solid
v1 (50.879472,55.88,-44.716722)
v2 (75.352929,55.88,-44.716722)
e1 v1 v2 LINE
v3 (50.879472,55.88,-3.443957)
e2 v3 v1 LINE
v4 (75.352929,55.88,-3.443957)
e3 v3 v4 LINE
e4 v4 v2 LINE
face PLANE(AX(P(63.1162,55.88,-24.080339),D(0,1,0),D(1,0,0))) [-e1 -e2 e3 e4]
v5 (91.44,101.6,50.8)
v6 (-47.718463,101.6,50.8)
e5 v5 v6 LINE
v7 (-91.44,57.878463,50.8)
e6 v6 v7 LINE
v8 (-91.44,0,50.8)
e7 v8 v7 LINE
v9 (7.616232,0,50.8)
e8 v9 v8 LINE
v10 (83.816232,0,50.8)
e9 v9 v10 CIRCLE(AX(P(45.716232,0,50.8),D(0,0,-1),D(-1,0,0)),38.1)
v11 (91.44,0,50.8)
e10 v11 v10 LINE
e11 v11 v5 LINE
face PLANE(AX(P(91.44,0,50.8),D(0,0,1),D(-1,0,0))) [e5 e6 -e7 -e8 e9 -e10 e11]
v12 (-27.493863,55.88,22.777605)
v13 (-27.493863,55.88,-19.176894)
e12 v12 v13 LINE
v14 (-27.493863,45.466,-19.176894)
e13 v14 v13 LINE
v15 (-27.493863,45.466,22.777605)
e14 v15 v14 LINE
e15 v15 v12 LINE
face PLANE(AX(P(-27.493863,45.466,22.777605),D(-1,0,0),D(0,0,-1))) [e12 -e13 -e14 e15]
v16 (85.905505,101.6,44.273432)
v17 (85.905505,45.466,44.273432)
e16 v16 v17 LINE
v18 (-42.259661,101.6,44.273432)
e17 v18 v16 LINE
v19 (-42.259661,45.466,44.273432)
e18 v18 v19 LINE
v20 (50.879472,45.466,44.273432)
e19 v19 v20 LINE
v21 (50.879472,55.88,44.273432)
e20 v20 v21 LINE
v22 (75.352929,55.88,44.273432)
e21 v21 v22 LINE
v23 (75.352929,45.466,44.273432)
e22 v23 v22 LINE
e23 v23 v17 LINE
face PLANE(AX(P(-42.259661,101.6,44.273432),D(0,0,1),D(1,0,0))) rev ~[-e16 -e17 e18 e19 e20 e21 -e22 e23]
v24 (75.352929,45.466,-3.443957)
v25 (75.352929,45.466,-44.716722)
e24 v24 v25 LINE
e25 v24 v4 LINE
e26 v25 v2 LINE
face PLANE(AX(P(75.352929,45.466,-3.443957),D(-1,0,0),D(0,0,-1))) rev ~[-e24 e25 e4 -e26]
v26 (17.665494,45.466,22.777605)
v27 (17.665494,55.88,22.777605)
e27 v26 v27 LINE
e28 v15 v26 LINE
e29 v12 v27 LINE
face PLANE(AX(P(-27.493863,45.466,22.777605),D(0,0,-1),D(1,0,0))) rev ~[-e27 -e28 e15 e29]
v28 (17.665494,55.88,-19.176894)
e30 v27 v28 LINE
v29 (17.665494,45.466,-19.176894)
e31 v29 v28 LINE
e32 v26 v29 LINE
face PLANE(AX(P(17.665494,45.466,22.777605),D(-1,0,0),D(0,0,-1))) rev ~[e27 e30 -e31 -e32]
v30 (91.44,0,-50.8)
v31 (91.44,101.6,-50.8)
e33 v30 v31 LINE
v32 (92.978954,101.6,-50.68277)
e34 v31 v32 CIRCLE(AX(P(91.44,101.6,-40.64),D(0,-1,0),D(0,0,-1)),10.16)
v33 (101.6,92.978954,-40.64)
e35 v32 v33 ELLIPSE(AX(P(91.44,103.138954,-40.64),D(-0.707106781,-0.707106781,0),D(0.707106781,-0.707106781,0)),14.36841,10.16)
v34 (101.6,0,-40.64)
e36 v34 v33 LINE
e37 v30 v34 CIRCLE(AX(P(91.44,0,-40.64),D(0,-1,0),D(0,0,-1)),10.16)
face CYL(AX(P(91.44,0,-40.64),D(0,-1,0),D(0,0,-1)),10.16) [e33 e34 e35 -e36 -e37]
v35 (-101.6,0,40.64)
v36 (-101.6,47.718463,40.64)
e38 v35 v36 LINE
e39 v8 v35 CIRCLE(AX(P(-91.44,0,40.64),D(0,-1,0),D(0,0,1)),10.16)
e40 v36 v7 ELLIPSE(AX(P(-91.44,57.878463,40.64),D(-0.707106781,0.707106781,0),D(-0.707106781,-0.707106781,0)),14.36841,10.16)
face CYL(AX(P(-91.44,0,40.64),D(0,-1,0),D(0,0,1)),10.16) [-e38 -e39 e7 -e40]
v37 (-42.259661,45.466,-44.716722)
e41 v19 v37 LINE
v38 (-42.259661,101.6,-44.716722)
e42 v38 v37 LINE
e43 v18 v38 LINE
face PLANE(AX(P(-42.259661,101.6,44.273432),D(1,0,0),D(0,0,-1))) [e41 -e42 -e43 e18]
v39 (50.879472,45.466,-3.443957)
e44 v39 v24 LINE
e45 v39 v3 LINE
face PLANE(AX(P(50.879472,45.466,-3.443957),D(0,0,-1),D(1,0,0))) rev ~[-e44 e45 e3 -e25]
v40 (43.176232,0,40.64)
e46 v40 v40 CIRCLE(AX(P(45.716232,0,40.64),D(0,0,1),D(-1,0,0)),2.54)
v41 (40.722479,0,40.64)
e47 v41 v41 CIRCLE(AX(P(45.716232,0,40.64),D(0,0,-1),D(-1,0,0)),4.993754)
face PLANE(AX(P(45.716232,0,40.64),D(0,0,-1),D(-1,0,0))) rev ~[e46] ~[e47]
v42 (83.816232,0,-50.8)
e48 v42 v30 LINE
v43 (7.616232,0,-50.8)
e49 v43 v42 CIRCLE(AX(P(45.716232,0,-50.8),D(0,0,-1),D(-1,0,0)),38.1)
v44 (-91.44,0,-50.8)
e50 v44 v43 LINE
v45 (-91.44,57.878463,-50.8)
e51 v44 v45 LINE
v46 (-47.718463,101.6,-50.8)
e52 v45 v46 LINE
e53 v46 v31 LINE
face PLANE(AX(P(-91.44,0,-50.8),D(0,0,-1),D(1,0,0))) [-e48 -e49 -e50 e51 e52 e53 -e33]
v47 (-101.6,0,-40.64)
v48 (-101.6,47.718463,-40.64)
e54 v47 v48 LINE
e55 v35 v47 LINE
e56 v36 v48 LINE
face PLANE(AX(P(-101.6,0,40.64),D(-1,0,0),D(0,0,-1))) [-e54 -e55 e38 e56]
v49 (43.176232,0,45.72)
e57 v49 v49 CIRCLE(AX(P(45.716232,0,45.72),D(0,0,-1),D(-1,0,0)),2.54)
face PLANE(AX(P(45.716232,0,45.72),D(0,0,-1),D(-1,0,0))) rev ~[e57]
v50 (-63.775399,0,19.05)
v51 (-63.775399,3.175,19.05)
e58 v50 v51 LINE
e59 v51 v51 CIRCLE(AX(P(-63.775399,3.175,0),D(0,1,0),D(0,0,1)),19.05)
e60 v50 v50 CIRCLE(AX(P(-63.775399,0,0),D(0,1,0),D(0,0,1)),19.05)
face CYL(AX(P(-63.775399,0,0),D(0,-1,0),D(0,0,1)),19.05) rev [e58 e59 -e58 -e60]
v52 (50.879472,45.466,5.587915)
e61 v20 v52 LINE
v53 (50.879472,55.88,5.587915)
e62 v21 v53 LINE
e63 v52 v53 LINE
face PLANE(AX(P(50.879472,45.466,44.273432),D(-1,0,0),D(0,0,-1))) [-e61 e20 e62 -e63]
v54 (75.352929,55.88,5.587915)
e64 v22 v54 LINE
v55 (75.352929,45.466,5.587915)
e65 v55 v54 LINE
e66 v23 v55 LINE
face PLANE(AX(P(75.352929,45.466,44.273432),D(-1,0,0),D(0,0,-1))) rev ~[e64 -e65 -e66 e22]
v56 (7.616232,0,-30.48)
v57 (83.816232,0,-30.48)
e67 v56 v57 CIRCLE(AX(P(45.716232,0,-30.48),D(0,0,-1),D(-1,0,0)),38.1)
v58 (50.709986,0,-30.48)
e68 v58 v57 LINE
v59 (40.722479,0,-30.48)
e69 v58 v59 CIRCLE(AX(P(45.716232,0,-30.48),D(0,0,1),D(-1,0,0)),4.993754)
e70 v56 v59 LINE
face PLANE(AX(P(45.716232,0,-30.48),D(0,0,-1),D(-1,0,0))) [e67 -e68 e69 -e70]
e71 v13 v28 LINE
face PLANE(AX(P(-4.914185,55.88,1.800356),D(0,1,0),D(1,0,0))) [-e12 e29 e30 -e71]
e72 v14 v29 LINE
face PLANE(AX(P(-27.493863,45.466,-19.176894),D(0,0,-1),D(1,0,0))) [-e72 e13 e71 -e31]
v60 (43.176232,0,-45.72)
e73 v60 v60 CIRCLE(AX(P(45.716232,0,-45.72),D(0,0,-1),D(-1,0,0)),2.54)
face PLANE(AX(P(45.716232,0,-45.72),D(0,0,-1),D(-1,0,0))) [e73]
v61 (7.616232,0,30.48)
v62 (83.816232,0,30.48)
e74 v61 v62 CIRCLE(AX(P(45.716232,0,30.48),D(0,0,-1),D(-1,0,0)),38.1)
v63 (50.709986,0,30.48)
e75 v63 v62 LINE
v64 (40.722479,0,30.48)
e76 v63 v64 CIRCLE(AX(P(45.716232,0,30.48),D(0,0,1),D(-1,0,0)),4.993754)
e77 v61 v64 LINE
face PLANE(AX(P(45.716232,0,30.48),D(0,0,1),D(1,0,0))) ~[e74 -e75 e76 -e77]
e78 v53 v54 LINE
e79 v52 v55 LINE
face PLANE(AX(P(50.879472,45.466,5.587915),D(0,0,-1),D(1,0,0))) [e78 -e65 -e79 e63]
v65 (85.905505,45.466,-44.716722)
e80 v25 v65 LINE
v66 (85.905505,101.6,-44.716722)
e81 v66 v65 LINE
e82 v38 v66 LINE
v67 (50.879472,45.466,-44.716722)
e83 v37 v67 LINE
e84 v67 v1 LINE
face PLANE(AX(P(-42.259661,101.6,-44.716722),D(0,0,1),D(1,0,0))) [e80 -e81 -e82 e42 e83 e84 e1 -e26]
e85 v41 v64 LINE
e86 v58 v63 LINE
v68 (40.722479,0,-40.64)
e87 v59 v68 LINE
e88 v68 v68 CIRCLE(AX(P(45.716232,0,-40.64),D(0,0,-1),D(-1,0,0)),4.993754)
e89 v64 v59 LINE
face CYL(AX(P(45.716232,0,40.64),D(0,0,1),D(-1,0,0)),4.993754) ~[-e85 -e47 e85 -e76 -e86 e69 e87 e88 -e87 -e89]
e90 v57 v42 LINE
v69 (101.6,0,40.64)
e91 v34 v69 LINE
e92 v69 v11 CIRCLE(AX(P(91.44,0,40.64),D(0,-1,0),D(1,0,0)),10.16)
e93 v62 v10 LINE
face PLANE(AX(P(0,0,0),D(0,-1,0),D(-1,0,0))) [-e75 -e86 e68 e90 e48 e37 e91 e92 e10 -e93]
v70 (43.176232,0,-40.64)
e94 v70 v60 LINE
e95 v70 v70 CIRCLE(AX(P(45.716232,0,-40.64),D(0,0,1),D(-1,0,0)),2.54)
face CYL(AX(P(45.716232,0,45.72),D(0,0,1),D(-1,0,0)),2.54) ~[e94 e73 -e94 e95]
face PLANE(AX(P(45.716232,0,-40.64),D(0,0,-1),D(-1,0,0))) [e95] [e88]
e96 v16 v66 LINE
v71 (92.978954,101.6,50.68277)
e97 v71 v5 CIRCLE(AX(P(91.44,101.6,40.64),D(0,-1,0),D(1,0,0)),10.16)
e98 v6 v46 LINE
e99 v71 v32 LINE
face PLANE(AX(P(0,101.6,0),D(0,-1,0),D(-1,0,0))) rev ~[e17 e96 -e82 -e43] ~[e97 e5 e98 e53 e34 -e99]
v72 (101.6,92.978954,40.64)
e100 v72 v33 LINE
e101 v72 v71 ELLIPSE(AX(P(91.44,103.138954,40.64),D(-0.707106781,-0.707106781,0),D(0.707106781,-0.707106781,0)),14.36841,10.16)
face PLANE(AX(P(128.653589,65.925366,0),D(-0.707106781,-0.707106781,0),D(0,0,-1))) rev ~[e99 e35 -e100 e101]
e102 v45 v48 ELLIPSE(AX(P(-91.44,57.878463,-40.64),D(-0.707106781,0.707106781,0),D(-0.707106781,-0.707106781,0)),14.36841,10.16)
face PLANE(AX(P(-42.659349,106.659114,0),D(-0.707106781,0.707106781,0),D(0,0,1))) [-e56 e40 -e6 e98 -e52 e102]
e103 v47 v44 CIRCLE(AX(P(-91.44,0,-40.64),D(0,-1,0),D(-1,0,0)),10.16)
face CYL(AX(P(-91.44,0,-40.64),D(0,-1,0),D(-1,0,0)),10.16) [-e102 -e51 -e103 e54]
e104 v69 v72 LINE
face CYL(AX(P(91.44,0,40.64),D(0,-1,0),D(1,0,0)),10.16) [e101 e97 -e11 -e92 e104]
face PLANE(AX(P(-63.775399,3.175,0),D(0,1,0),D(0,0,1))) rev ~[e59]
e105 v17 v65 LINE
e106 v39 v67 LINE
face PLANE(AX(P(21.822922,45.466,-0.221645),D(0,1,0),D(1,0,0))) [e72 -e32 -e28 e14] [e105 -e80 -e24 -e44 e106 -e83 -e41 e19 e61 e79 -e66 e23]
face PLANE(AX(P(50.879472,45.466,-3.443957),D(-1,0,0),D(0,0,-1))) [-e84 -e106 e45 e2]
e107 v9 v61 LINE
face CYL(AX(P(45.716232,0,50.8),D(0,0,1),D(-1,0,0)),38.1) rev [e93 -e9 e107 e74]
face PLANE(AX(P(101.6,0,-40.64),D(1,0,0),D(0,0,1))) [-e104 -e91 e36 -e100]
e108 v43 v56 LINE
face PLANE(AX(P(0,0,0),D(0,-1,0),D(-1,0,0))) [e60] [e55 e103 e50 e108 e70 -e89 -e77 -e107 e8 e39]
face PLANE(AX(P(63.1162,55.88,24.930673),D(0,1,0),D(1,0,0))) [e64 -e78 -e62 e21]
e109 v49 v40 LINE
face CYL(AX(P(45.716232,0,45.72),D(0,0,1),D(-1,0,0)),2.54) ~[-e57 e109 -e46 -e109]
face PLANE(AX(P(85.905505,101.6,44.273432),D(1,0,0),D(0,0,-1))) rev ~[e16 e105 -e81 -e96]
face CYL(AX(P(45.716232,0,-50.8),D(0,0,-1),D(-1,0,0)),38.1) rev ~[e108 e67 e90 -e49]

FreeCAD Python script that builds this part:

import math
import FreeCAD as App
import Part
import Sketcher
Q = App.Units.Quantity

doc = App.newDocument("Part")
body = doc.addObject("PartDesign::Body", "Body")

# Sketch on XZ plane
sketch1 = doc.addObject("Sketcher::SketchObject", "Sketch")
body.addObject(sketch1)
sketch1.AttachmentSupport = (doc.XZ_Plane, [""])
sketch1.MapMode = "FlatFace"
sketch1.addGeometry([
    Part.LineSegment(App.Vector(91, -51, 0), App.Vector(-91, -51, 0)),  # 0
    Part.ArcOfCircle(Part.Circle(App.Vector(-91, -41, 0), App.Vector(0, 0, 1), 10), math.radians(180), math.radians(270)),  # 1
    Part.LineSegment(App.Vector(-102, -41, 0), App.Vector(-102, 41, 0)),  # 2
    Part.ArcOfCircle(Part.Circle(App.Vector(-91, 41, 0), App.Vector(0, 0, 1), 10), math.radians(90), math.radians(180)),  # 3
    Part.LineSegment(App.Vector(-91, 51, 0), App.Vector(91, 51, 0)),  # 4
    Part.ArcOfCircle(Part.Circle(App.Vector(91, 41, 0), App.Vector(0, 0, 1), 10), math.radians(0), math.radians(90)),  # 5
    Part.LineSegment(App.Vector(102, 41, 0), App.Vector(102, -41, 0)),  # 6
    Part.ArcOfCircle(Part.Circle(App.Vector(91, -41, 0), App.Vector(0, 0, 1), 10), math.radians(-90), math.radians(0)),  # 7
], False)
sketch1.addConstraint([
    Sketcher.Constraint("Tangent", 0, 2, 1, 2),
    Sketcher.Constraint("Tangent", 1, 1, 2, 1),
    Sketcher.Constraint("Tangent", 2, 2, 3, 2),
    Sketcher.Constraint("Tangent", 3, 1, 4, 1),
    Sketcher.Constraint("Tangent", 4, 2, 5, 2),
    Sketcher.Constraint("Tangent", 5, 1, 6, 1),
    Sketcher.Constraint("Tangent", 6, 2, 7, 2),
    Sketcher.Constraint("Tangent", 7, 1, 0, 1),
    Sketcher.Constraint("Horizontal", 0),
    Sketcher.Constraint("Vertical", 2),
    Sketcher.Constraint("Horizontal", 4),
    Sketcher.Constraint("Vertical", 6),
    Sketcher.Constraint("Equal", 1, 3),
    Sketcher.Constraint("Equal", 3, 5),
    Sketcher.Constraint("Equal", 5, 7),
    Sketcher.Constraint("Symmetric", 1, 3, 5, 3, -1, 1),
    Sketcher.Constraint("Radius", 1, Q("0.4 in")),
    Sketcher.Constraint("DistanceX", 0, 2, 0, 1, Q("7.2 in")),
    Sketcher.Constraint("DistanceY", 2, 1, 2, 2, Q("3.2 in")),
])
pad1 = doc.addObject("PartDesign::Pad", "Pad")
body.addObject(pad1)
pad1.Profile = sketch1
pad1.Length = Q("4 in")
pad1.Reversed = True

# Sketch on XY plane
sketch2 = doc.addObject("Sketcher::SketchObject", "Sketch001")
body.addObject(sketch2)
sketch2.AttachmentSupport = (doc.XY_Plane, [""])
sketch2.MapMode = "FlatFace"
sketch2.AttachmentOffset = App.Placement(App.Vector(0, 0, -2 * 25.4), App.Rotation())
sketch2.addGeometry(Part.Circle(App.Vector(46, 0, 0), App.Vector(0, 0, 1), 38), False)
sketch2.addConstraint([
    Sketcher.Constraint("PointOnObject", 0, 3, -1),
    Sketcher.Constraint("Diameter", 0, Q("3 in")),
    Sketcher.Constraint("DistanceX", -1, 1, 0, 3, Q("45.716232 mm")),
])
pocket1 = doc.addObject("PartDesign::Pocket", "Pocket")
body.addObject(pocket1)
pocket1.Profile = sketch2
pocket1.Length = Q("0.8 in")
pocket1.Reversed = True
doc.recompute()

mirrored = doc.addObject("PartDesign::Mirrored", "Mirrored")
body.addObject(mirrored)
mirrored.Originals = [pocket1]
mirrored.MirrorPlane = (doc.XY_Plane, [""])
body.Tip = mirrored

# Sketch on XY plane
sketch3 = doc.addObject("Sketcher::SketchObject", "Sketch002")
body.addObject(sketch3)
sketch3.AttachmentSupport = (doc.XY_Plane, [""])
sketch3.MapMode = "FlatFace"
sketch3.AttachmentOffset = App.Placement(App.Vector(0, 0, -1.2 * 25.4), App.Rotation())
sketch3.addGeometry(Part.Circle(App.Vector(45.7, 0, 0), App.Vector(0, 0, 1), 5), False)
sketch3.addConstraint([
    Sketcher.Constraint("PointOnObject", 0, 3, -1),
    Sketcher.Constraint("Diameter", 0, Q("9.987507 mm")),
    Sketcher.Constraint("DistanceX", -1, 1, 0, 3, Q("45.716232 mm")),
])
pad2 = doc.addObject("PartDesign::Pad", "Pad001")
body.addObject(pad2)
pad2.Profile = sketch3
pad2.Type = "TwoLengths"
pad2.Length = Q("0.4 in")
pad2.Length2 = Q("2.8 in")
pad2.Reversed = True

# Sketch on XY plane
sketch4 = doc.addObject("Sketcher::SketchObject", "Sketch003")
body.addObject(sketch4)
sketch4.AttachmentSupport = (doc.XY_Plane, [""])
sketch4.MapMode = "FlatFace"
sketch4.AttachmentOffset = App.Placement(App.Vector(0, 0, -1.6 * 25.4), App.Rotation())
sketch4.addGeometry(Part.Circle(App.Vector(45.7, 0, 0), App.Vector(0, 0, 1), 2.5), False)
sketch4.addConstraint([
    Sketcher.Constraint("PointOnObject", 0, 3, -1),
    Sketcher.Constraint("Diameter", 0, Q("0.2 in")),
    Sketcher.Constraint("DistanceX", -1, 1, 0, 3, Q("45.716232 mm")),
])
pad3 = doc.addObject("PartDesign::Pad", "Pad002")
body.addObject(pad3)
pad3.Profile = sketch4
pad3.Type = "TwoLengths"
pad3.Length = Q("0.2 in")
pad3.Length2 = Q("3.4 in")
pad3.Reversed = True

# Sketch on XZ plane
sketch5 = doc.addObject("Sketcher::SketchObject", "Sketch004")
body.addObject(sketch5)
sketch5.AttachmentSupport = (doc.XZ_Plane, [""])
sketch5.MapMode = "FlatFace"
sketch5.addGeometry(Part.Circle(App.Vector(-64, 0, 0), App.Vector(0, 0, 1), 19), False)
sketch5.addConstraint([
    Sketcher.Constraint("PointOnObject", 0, 3, -1),
    Sketcher.Constraint("Diameter", 0, Q("1.5 in")),
    Sketcher.Constraint("DistanceX", 0, 3, -1, 1, Q("63.775399 mm")),
])
pocket2 = doc.addObject("PartDesign::Pocket", "Pocket001")
body.addObject(pocket2)
pocket2.Profile = sketch5
pocket2.Length = Q("0.125 in")

# Sketch on an angled plane
sketch6 = doc.addObject("Sketcher::SketchObject", "Sketch005")
body.addObject(sketch6)
sketch6.Placement = App.Placement(App.Vector(-101.6, 101.6, 0), App.Rotation(App.Vector(0, 0, 1), App.Vector(0.707106781, 0.707106781, 0), App.Vector(-0.707106781, 0.707106781, 0), "ZXY"))
sketch6.addGeometry([
    Part.LineSegment(App.Vector(-102, 151, 0), App.Vector(-102, -61, 0)),
    Part.LineSegment(App.Vector(-102, -61, 0), App.Vector(102, -61, 0)),
    Part.LineSegment(App.Vector(102, -61, 0), App.Vector(102, 151, 0)),
    Part.LineSegment(App.Vector(102, 151, 0), App.Vector(-102, 151, 0)),
], False)
sketch6.addConstraint([
    Sketcher.Constraint("Coincident", 0, 2, 1, 1),
    Sketcher.Constraint("Coincident", 1, 2, 2, 1),
    Sketcher.Constraint("Coincident", 2, 2, 3, 1),
    Sketcher.Constraint("Coincident", 3, 2, 0, 1),
    Sketcher.Constraint("Vertical", 0),
    Sketcher.Constraint("Horizontal", 1),
    Sketcher.Constraint("Vertical", 2),
    Sketcher.Constraint("Horizontal", 3),
    Sketcher.Constraint("DistanceX", 1, 1, 1, 2, Q("204.446341 mm")),
    Sketcher.Constraint("DistanceY", 0, 2, 0, 1, Q("212.005576 mm")),
    Sketcher.Constraint("DistanceX", 0, 2, -1, 1, Q("102.223171 mm")),
    Sketcher.Constraint("DistanceY", 0, 2, -1, 1, Q("60.74812 mm")),
])
pocket3 = doc.addObject("PartDesign::Pocket", "Pocket002")
body.addObject(pocket3)
pocket3.Profile = sketch6
pocket3.Length = Q("1.5 in")

# Sketch on an angled plane
sketch7 = doc.addObject("Sketcher::SketchObject", "Sketch006")
body.addObject(sketch7)
sketch7.Placement = App.Placement(App.Vector(101.6, 101.6, 0), App.Rotation(App.Vector(0, 0, -1), App.Vector(0.707106781, -0.707106781, 0), App.Vector(-0.707106781, -0.707106781, 0), "ZXY"))
sketch7.addGeometry([
    Part.LineSegment(App.Vector(-96, 124, 0), App.Vector(-96, -35, 0)),
    Part.LineSegment(App.Vector(-96, -35, 0), App.Vector(96, -35, 0)),
    Part.LineSegment(App.Vector(96, -35, 0), App.Vector(96, 124, 0)),
    Part.LineSegment(App.Vector(96, 124, 0), App.Vector(-96, 124, 0)),
], False)
sketch7.addConstraint([
    Sketcher.Constraint("Coincident", 0, 2, 1, 1),
    Sketcher.Constraint("Coincident", 1, 2, 2, 1),
    Sketcher.Constraint("Coincident", 2, 2, 3, 1),
    Sketcher.Constraint("Coincident", 3, 2, 0, 1),
    Sketcher.Constraint("Vertical", 0),
    Sketcher.Constraint("Horizontal", 1),
    Sketcher.Constraint("Vertical", 2),
    Sketcher.Constraint("Horizontal", 3),
    Sketcher.Constraint("DistanceX", 1, 1, 1, 2, Q("191.952178 mm")),
    Sketcher.Constraint("DistanceY", 0, 2, 0, 1, Q("158.555264 mm")),
    Sketcher.Constraint("DistanceX", 0, 2, -1, 1, Q("95.976089 mm")),
    Sketcher.Constraint("DistanceY", 0, 2, -1, 1, Q("34.92208 mm")),
])
pocket4 = doc.addObject("PartDesign::Pocket", "Pocket003")
body.addObject(pocket4)
pocket4.Profile = sketch7
pocket4.Length = Q("0.24 in")
pocket4.Reversed = True

# Sketch on XZ plane
sketch8 = doc.addObject("Sketcher::SketchObject", "Sketch007")
body.addObject(sketch8)
sketch8.AttachmentSupport = (doc.XZ_Plane, [""])
sketch8.MapMode = "FlatFace"
sketch8.AttachmentOffset = App.Placement(App.Vector(0, 0, -4 * 25.4), App.Rotation())
sketch8.addGeometry([
    Part.LineSegment(App.Vector(-42, -45, 0), App.Vector(-42, 44, 0)),
    Part.LineSegment(App.Vector(-42, 44, 0), App.Vector(86, 44, 0)),
    Part.LineSegment(App.Vector(86, 44, 0), App.Vector(86, -45, 0)),
    Part.LineSegment(App.Vector(86, -45, 0), App.Vector(-42, -45, 0)),
], False)
sketch8.addConstraint([
    Sketcher.Constraint("Coincident", 0, 2, 1, 1),
    Sketcher.Constraint("Coincident", 1, 2, 2, 1),
    Sketcher.Constraint("Coincident", 2, 2, 3, 1),
    Sketcher.Constraint("Coincident", 3, 2, 0, 1),
    Sketcher.Constraint("Vertical", 0),
    Sketcher.Constraint("Horizontal", 1),
    Sketcher.Constraint("Vertical", 2),
    Sketcher.Constraint("Horizontal", 3),
    Sketcher.Constraint("DistanceX", 1, 1, 1, 2, Q("128.165166 mm")),
    Sketcher.Constraint("DistanceY", 0, 1, 0, 2, Q("88.990153 mm")),
    Sketcher.Constraint("DistanceX", 0, 2, -1, 1, Q("42.259661 mm")),
    Sketcher.Constraint("DistanceY", -1, 1, 0, 2, Q("44.273432 mm")),
])
pocket5 = doc.addObject("PartDesign::Pocket", "Pocket004")
body.addObject(pocket5)
pocket5.Profile = sketch8
pocket5.Length = Q("2.21 in")
pocket5.Reversed = True

# Sketch on XZ plane
sketch9 = doc.addObject("Sketcher::SketchObject", "Sketch008")
body.addObject(sketch9)
sketch9.AttachmentSupport = (doc.XZ_Plane, [""])
sketch9.MapMode = "FlatFace"
sketch9.AttachmentOffset = App.Placement(App.Vector(0, 0, -1.79 * 25.4), App.Rotation())
sketch9.addGeometry([
    Part.LineSegment(App.Vector(-27, -19, 0), App.Vector(-27, 23, 0)),  # 0
    Part.LineSegment(App.Vector(-27, 23, 0), App.Vector(18, 23, 0)),  # 1
    Part.LineSegment(App.Vector(18, 23, 0), App.Vector(18, -19, 0)),  # 2
    Part.LineSegment(App.Vector(18, -19, 0), App.Vector(-27, -19, 0)),  # 3
    Part.LineSegment(App.Vector(51, -45, 0), App.Vector(51, -3, 0)),  # 4
    Part.LineSegment(App.Vector(51, -3, 0), App.Vector(75, -3, 0)),  # 5
    Part.LineSegment(App.Vector(75, -3, 0), App.Vector(75, -45, 0)),  # 6
    Part.LineSegment(App.Vector(75, -45, 0), App.Vector(51, -45, 0)),  # 7
    Part.LineSegment(App.Vector(51, 6, 0), App.Vector(51, 44, 0)),  # 8
    Part.LineSegment(App.Vector(51, 44, 0), App.Vector(75, 44, 0)),  # 9
    Part.LineSegment(App.Vector(75, 44, 0), App.Vector(75, 6, 0)),  # 10
    Part.LineSegment(App.Vector(75, 6, 0), App.Vector(51, 6, 0)),  # 11
], False)
sketch9.addConstraint([
    Sketcher.Constraint("Coincident", 0, 2, 1, 1),
    Sketcher.Constraint("Coincident", 1, 2, 2, 1),
    Sketcher.Constraint("Coincident", 2, 2, 3, 1),
    Sketcher.Constraint("Coincident", 3, 2, 0, 1),
    Sketcher.Constraint("Coincident", 4, 2, 5, 1),
    Sketcher.Constraint("Coincident", 5, 2, 6, 1),
    Sketcher.Constraint("Coincident", 6, 2, 7, 1),
    Sketcher.Constraint("Coincident", 7, 2, 4, 1),
    Sketcher.Constraint("Coincident", 8, 2, 9, 1),
    Sketcher.Constraint("Coincident", 9, 2, 10, 1),
    Sketcher.Constraint("Coincident", 10, 2, 11, 1),
    Sketcher.Constraint("Coincident", 11, 2, 8, 1),
    Sketcher.Constraint("Vertical", 0),
    Sketcher.Constraint("Horizontal", 1),
    Sketcher.Constraint("Vertical", 2),
    Sketcher.Constraint("Horizontal", 3),
    Sketcher.Constraint("Vertical", 4),
    Sketcher.Constraint("Horizontal", 5),
    Sketcher.Constraint("Vertical", 6),
    Sketcher.Constraint("Horizontal", 7),
    Sketcher.Constraint("Vertical", 8),
    Sketcher.Constraint("Horizontal", 9),
    Sketcher.Constraint("Vertical", 10),
    Sketcher.Constraint("Horizontal", 11),
    Sketcher.Constraint("Vertical", 7, 2, 8, 2),
    Sketcher.Constraint("Vertical", 6, 2, 9, 2),
    Sketcher.Constraint("DistanceY", 0, 1, 0, 2, Q("41.954499 mm")),
    Sketcher.Constraint("DistanceX", 1, 1, 1, 2, Q("45.159356 mm")),
    Sketcher.Constraint("DistanceX", 5, 1, 5, 2, Q("24.473458 mm")),
    Sketcher.Constraint("DistanceY", 4, 1, 4, 2, Q("41.272765 mm")),
    Sketcher.Constraint("DistanceY", 8, 1, 8, 2, Q("38.685517 mm")),
    Sketcher.Constraint("DistanceX", -1, 1, 4, 2, Q("50.879472 mm")),
    Sketcher.Constraint("DistanceY", 6, 2, -1, 1, Q("44.716722 mm")),
    Sketcher.Constraint("DistanceY", -1, 1, 8, 2, Q("44.273432 mm")),
    Sketcher.Constraint("DistanceX", 2, 2, 4, 2, Q("33.213978 mm")),
    Sketcher.Constraint("DistanceY", 4, 2, 1, 2, Q("26.221562 mm")),
])
pad4 = doc.addObject("PartDesign::Pad", "Pad003")
body.addObject(pad4)
pad4.Profile = sketch9
pad4.Length = Q("0.41 in")
pad4.Reversed = True

doc.recompute()
